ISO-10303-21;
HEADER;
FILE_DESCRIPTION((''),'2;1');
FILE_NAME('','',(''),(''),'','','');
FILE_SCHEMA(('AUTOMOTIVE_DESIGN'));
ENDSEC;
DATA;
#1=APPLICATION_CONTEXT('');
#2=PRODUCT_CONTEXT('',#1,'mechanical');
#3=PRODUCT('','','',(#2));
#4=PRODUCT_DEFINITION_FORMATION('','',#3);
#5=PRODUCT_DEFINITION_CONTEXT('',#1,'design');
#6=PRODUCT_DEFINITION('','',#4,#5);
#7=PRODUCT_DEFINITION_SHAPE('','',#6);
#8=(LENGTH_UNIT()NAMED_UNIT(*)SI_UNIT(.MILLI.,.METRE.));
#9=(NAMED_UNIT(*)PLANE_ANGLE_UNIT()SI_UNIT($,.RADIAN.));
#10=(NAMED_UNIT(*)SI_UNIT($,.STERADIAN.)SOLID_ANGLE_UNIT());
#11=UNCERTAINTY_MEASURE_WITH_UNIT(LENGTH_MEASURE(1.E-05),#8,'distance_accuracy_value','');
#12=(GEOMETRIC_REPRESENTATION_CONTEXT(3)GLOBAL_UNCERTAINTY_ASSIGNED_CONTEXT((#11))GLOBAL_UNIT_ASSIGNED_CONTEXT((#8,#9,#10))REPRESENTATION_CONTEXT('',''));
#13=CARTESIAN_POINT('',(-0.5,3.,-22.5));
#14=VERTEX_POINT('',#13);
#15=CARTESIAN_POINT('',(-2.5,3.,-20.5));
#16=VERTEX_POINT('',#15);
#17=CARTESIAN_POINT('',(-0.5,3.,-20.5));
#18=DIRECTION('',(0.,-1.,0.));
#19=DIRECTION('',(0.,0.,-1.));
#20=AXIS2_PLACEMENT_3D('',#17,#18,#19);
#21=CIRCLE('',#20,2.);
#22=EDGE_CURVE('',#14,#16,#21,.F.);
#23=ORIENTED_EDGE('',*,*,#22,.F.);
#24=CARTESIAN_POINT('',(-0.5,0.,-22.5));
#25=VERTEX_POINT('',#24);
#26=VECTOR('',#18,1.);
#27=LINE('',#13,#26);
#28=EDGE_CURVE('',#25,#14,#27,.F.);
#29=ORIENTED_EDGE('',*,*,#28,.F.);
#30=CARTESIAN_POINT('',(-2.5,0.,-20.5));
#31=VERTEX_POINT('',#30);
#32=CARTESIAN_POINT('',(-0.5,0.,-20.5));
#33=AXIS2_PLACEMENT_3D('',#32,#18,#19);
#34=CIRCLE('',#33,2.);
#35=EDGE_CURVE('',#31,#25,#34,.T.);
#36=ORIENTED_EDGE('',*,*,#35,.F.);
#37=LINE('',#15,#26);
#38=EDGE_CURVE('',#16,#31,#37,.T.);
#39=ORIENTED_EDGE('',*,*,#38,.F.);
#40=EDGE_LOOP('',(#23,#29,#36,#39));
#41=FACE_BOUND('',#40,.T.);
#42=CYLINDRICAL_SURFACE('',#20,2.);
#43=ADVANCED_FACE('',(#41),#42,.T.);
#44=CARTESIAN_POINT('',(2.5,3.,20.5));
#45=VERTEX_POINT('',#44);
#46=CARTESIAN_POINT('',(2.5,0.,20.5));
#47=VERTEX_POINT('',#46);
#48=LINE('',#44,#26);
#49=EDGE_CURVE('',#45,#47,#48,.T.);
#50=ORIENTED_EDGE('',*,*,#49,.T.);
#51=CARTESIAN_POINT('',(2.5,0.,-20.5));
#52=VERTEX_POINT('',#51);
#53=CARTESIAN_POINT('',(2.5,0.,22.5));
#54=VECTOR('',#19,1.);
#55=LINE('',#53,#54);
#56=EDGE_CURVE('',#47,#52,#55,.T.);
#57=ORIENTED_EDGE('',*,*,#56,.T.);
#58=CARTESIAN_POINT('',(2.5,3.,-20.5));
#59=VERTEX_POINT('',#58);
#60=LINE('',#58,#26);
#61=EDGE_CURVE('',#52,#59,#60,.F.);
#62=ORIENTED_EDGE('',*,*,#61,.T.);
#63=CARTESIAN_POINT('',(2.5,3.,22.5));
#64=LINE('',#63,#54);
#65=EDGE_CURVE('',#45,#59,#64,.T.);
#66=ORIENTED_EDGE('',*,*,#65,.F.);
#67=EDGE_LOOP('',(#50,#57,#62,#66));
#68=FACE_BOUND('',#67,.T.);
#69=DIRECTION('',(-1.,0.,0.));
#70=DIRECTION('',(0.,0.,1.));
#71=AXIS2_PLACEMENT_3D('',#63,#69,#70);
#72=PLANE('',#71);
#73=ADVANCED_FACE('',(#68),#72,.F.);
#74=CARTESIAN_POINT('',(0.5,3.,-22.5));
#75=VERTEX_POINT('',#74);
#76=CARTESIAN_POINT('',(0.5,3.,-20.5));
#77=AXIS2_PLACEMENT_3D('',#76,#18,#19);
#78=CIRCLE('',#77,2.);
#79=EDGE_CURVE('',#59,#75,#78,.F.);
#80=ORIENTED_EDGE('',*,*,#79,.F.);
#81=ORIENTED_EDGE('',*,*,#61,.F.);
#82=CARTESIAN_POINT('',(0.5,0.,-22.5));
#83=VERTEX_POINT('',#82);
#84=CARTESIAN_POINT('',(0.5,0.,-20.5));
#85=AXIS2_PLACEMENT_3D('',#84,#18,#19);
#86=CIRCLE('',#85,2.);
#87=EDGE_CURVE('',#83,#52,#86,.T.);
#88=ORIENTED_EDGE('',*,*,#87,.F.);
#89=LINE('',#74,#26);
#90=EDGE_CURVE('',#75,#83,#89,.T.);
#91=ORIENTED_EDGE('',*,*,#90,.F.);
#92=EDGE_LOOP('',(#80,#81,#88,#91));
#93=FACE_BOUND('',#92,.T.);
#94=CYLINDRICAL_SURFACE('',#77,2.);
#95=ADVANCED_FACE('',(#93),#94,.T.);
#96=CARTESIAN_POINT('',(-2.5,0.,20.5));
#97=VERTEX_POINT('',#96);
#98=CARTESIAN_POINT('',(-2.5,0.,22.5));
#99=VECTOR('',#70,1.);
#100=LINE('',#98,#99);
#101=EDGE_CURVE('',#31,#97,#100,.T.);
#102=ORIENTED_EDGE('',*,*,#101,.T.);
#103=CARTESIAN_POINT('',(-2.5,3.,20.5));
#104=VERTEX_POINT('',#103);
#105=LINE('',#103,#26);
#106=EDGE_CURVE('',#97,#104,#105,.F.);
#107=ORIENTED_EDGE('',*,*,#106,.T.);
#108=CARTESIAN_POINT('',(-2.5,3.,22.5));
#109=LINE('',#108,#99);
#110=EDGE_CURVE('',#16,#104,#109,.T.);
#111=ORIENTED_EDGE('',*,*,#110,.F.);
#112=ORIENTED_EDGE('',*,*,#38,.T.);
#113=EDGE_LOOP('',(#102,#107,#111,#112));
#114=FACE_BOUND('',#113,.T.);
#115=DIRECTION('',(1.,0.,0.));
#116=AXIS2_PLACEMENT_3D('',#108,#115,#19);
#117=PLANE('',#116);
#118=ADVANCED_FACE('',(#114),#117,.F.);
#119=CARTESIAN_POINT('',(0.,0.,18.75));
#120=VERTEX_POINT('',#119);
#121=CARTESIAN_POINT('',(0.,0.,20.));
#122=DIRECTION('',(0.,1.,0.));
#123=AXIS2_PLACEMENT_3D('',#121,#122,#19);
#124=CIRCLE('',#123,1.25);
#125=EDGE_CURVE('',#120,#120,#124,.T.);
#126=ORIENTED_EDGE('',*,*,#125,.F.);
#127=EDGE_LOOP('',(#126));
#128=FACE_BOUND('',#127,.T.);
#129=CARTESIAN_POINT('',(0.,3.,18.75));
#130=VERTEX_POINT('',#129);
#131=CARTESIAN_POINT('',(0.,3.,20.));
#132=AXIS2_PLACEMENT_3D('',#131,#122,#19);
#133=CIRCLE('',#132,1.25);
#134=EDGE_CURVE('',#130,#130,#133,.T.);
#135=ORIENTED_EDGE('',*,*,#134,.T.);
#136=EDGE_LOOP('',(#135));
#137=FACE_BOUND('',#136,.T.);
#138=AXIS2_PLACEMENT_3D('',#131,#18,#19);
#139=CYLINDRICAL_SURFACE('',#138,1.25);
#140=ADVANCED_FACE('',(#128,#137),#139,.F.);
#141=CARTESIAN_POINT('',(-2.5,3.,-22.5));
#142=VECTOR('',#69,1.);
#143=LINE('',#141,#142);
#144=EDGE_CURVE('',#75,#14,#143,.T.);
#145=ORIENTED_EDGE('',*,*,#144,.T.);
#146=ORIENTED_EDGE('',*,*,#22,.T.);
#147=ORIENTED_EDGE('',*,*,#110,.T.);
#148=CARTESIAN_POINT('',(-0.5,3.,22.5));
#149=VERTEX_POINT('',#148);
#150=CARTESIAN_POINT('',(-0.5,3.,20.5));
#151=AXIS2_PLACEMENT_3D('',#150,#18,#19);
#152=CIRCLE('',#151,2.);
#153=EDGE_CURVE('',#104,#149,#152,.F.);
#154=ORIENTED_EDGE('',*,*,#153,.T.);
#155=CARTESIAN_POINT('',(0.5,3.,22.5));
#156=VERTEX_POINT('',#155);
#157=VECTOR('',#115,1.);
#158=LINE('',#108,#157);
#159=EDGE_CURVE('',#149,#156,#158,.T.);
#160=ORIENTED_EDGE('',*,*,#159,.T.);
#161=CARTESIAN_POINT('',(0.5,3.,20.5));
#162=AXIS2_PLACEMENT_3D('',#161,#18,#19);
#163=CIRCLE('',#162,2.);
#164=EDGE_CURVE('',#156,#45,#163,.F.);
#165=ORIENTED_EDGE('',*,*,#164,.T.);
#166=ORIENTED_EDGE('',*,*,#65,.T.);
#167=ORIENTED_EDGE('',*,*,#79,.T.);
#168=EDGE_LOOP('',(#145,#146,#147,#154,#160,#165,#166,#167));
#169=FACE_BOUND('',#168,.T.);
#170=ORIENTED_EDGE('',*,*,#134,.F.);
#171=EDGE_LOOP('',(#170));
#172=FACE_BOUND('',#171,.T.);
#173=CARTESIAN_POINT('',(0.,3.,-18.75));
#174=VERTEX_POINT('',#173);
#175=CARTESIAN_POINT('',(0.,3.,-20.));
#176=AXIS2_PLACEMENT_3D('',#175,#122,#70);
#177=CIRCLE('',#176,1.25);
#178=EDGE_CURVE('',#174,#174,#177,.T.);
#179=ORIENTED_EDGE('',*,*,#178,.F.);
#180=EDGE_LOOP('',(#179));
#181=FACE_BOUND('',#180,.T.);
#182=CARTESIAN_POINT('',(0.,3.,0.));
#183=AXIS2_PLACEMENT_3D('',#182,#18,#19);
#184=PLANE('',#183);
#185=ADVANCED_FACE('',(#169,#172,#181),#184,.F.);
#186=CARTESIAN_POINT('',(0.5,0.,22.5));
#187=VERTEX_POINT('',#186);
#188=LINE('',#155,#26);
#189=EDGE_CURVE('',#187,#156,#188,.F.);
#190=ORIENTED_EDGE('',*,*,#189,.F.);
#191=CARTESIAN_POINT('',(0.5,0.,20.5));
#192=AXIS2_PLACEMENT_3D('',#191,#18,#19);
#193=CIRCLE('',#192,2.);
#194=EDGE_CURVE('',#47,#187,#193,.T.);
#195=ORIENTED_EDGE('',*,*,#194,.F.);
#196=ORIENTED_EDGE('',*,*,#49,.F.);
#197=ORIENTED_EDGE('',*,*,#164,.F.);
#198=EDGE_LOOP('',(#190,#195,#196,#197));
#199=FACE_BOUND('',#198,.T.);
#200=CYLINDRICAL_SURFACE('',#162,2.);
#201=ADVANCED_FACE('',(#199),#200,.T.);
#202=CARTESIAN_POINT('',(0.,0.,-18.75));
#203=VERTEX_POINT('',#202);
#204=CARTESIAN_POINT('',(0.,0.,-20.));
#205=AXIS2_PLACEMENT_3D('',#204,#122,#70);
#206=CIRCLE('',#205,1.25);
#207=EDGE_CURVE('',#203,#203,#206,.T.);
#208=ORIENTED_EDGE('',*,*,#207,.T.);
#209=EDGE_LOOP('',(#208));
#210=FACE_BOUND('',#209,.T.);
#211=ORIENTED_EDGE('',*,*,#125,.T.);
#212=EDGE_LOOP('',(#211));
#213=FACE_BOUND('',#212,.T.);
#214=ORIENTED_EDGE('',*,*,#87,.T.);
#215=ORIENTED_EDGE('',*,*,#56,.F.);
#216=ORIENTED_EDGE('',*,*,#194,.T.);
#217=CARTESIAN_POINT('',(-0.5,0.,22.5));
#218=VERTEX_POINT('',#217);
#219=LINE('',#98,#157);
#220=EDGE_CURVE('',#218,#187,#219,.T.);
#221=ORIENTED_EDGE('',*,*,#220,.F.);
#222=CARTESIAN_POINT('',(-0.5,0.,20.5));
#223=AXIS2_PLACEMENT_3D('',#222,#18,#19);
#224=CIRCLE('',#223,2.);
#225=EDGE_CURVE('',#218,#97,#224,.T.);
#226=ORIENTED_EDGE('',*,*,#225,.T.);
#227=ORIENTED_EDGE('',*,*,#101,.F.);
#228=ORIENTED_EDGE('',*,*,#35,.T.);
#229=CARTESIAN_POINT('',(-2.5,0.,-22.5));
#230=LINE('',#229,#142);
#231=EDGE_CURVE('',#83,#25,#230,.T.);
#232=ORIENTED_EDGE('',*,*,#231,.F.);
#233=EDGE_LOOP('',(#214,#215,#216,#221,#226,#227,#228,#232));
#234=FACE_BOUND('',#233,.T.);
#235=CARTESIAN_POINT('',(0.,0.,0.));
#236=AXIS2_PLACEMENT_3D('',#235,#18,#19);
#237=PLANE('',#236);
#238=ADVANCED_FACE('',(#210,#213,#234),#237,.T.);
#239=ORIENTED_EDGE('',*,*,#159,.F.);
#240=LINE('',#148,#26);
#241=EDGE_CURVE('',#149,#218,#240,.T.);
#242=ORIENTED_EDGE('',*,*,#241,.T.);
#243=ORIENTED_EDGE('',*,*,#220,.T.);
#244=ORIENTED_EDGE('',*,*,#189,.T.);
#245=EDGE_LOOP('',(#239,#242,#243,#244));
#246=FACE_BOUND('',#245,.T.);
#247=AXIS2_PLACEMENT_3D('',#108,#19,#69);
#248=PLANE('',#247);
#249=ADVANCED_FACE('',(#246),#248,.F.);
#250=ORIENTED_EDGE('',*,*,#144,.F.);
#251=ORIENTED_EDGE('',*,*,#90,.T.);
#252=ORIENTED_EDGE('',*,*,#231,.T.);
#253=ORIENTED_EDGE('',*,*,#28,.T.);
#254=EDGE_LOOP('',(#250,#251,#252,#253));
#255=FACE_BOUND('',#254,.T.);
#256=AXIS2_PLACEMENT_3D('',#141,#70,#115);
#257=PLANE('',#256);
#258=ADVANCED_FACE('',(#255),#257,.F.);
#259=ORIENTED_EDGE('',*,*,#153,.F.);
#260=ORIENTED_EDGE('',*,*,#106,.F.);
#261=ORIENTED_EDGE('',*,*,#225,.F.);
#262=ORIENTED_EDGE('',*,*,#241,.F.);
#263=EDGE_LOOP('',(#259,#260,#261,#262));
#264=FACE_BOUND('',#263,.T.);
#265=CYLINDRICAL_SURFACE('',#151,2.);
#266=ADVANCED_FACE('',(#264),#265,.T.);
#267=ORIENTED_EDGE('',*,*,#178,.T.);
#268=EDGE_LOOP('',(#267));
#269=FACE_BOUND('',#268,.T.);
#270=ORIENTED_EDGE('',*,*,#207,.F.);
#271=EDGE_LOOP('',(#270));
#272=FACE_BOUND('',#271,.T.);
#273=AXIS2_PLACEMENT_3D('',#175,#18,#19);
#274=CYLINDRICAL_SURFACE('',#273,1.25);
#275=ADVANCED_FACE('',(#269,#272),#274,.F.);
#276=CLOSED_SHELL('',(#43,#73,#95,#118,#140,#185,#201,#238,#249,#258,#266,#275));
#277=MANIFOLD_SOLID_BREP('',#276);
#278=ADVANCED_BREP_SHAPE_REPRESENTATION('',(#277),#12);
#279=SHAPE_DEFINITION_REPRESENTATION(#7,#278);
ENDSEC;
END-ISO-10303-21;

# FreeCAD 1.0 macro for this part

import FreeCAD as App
import Part
import Sketcher
from FreeCAD import Vector
Q = App.Units.Quantity


def edges_at(feature, points):
    """Names of the edges that pass closest to the given points."""
    edges = feature.Shape.Edges
    near = lambda p: min(range(len(edges)), key=lambda i: edges[i].distToShape(Part.Vertex(*p))[0])
    return sorted({f"Edge{near(p) + 1}" for p in points})

doc = App.newDocument("Part")
body = doc.addObject("PartDesign::Body", "Body")

sketch1 = body.newObject("Sketcher::SketchObject", "Sketch")
sketch1.AttachmentSupport = (doc.getObject("XZ_Plane"), [""])
sketch1.MapMode = "FlatFace"
sketch1.addGeometry([
    Part.LineSegment(Vector(-2.5, -22.5, 0), Vector(-2.5, 22.5, 0)),
    Part.LineSegment(Vector(-2.5, 22.5, 0), Vector(2.5, 22.5, 0)),
    Part.LineSegment(Vector(2.5, 22.5, 0), Vector(2.5, -22.5, 0)),
    Part.LineSegment(Vector(2.5, -22.5, 0), Vector(-2.5, -22.5, 0)),
    Part.Circle(Vector(0, 20, 0), Vector(0, 0, 1), 1.25),
    Part.Circle(Vector(0, -20, 0), Vector(0, 0, 1), 1.25),
], False)
sketch1.addConstraint([
    Sketcher.Constraint("Coincident", 0, 2, 1, 1),
    Sketcher.Constraint("Coincident", 1, 2, 2, 1),
    Sketcher.Constraint("Coincident", 2, 2, 3, 1),
    Sketcher.Constraint("Coincident", 3, 2, 0, 1),
    Sketcher.Constraint("Vertical", 0),
    Sketcher.Constraint("Horizontal", 1),
    Sketcher.Constraint("Vertical", 2),
    Sketcher.Constraint("Horizontal", 3),
    Sketcher.Constraint("Equal", 4, 5),
    Sketcher.Constraint("Symmetric", 4, 3, 5, 3, -1, 1),
    Sketcher.Constraint("Symmetric", 0, 2, 2, 2, -1, 1),
    Sketcher.Constraint("PointOnObject", 4, 3, -2),
    Sketcher.Constraint("Diameter", 4, Q("2.5 mm")),
    Sketcher.Constraint("DistanceX", 1, 1, 1, 2, Q("5 mm")),
    Sketcher.Constraint("DistanceY", 0, 1, 0, 2, Q("45 mm")),
    Sketcher.Constraint("DistanceY", -1, 1, 4, 3, Q("20 mm")),
])
pad1 = body.newObject("PartDesign::Pad", "Pad")
pad1.Profile = sketch1
pad1.Length = 3
pad1.Reversed = True
doc.recompute()

fillet = body.newObject("PartDesign::Fillet", "Fillet")
fillet.Base = (pad1, edges_at(pad1, [
    (2.5, 1.5, 22.5),
    (-2.5, 1.5, 22.5),
    (-2.5, 1.5, -22.5),
    (2.5, 1.5, -22.5),
]))
fillet.Radius = 2

doc.recompute()
